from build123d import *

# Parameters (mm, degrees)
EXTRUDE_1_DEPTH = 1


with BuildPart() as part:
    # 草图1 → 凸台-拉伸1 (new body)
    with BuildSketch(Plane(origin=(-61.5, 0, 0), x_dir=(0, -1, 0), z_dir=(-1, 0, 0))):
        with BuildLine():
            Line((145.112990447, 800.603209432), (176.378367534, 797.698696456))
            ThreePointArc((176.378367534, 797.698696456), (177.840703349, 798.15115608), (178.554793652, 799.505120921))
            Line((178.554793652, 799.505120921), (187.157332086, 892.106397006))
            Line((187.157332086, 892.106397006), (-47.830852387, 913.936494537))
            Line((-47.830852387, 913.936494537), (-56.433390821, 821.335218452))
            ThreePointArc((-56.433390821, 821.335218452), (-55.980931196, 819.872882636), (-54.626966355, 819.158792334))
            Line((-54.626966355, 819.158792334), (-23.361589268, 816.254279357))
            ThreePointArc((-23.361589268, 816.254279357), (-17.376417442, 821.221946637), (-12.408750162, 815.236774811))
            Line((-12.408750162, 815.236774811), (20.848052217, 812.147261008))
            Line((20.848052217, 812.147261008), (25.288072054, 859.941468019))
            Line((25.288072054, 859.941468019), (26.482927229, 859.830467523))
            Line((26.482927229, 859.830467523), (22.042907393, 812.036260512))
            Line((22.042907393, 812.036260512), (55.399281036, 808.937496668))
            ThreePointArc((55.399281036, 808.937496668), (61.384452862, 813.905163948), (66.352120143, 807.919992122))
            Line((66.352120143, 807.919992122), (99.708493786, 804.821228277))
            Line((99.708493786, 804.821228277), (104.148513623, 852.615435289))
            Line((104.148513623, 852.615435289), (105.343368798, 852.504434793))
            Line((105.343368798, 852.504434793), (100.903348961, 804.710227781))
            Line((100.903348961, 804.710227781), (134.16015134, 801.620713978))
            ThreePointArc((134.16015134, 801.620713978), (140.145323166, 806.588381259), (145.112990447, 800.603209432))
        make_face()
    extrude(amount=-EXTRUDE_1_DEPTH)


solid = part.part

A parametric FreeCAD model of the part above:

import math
import FreeCAD as App
import Part
import Sketcher
Q = App.Units.Quantity

doc = App.newDocument("Part")
params = doc.addObject("Spreadsheet::Sheet", "Params")
for row, (alias, value) in enumerate([
    ("sketch1_radius", "2 mm"),
    ("sketch1_radius2", "2 mm"),
    ("sketch1_radius3", "5.5 mm"),
    ("sketch1_radius4", "5.5 mm"),
    ("sketch1_radius5", "5.5 mm"),
    ("pad1_length", "1 mm"),
], start=1):
    params.set(f"A{row}", alias)
    params.set(f"B{row}", "=" + value)
    params.setAlias(f"B{row}", alias)

body = doc.addObject("PartDesign::Body", "Body")

sketch1 = body.newObject("Sketcher::SketchObject", "Sketch")
sketch1.AttachmentSupport = (doc.getObject("YZ_Plane"), [""])
sketch1.MapMode = "FlatFace"
sketch1.AttachmentOffset = App.Placement(App.Vector(0, 0, -61.5), App.Rotation())
sketch1.addGeometry(Part.LineSegment(App.Vector(-145.11299, 800.603209, 0), App.Vector(-176.378368, 797.698696, 0)), False)
sketch1.addGeometry(Part.ArcOfCircle(Part.Circle(App.Vector(-176.563368, 799.690122, 0), App.Vector(0, 0, 1), 2), math.radians(-174.69253), math.radians(-84.69253)), False)
sketch1.addGeometry(Part.LineSegment(App.Vector(-178.554794, 799.505121, 0), App.Vector(-187.157332, 892.106397, 0)), False)
sketch1.addGeometry(Part.LineSegment(App.Vector(-187.157332, 892.106397, 0), App.Vector(47.830852, 913.936495, 0)), False)
sketch1.addGeometry(Part.LineSegment(App.Vector(47.830852, 913.936495, 0), App.Vector(56.433391, 821.335218, 0)), False)
sketch1.addGeometry(Part.ArcOfCircle(Part.Circle(App.Vector(54.441966, 821.150218, 0), App.Vector(0, 0, 1), 2), math.radians(-84.69253), math.radians(5.30747)), False)
sketch1.addGeometry(Part.LineSegment(App.Vector(54.626966, 819.158792, 0), App.Vector(23.361589, 816.254279, 0)), False)
sketch1.addGeometry(Part.ArcOfCircle(Part.Circle(App.Vector(17.88517, 815.745527, 0), App.Vector(0, 0, 1), 5.5), math.radians(5.30747), math.radians(185.30747)), False)
sketch1.addGeometry(Part.LineSegment(App.Vector(12.40875, 815.236775, 0), App.Vector(-20.848052, 812.147261, 0)), False)
sketch1.addGeometry(Part.LineSegment(App.Vector(-20.848052, 812.147261, 0), App.Vector(-25.288072, 859.941468, 0)), False)
sketch1.addGeometry(Part.LineSegment(App.Vector(-25.288072, 859.941468, 0), App.Vector(-26.482927, 859.830468, 0)), False)
sketch1.addGeometry(Part.LineSegment(App.Vector(-26.482927, 859.830468, 0), App.Vector(-22.042907, 812.036261, 0)), False)
sketch1.addGeometry(Part.LineSegment(App.Vector(-22.042907, 812.036261, 0), App.Vector(-55.399281, 808.937497, 0)), False)
sketch1.addGeometry(Part.ArcOfCircle(Part.Circle(App.Vector(-60.875701, 808.428744, 0), App.Vector(0, 0, 1), 5.5), math.radians(5.30747), math.radians(185.30747)), False)
sketch1.addGeometry(Part.LineSegment(App.Vector(-66.35212, 807.919992, 0), App.Vector(-99.708494, 804.821228, 0)), False)
sketch1.addGeometry(Part.LineSegment(App.Vector(-99.708494, 804.821228, 0), App.Vector(-104.148514, 852.615435, 0)), False)
sketch1.addGeometry(Part.LineSegment(App.Vector(-104.148514, 852.615435, 0), App.Vector(-105.343369, 852.504435, 0)), False)
sketch1.addGeometry(Part.LineSegment(App.Vector(-105.343369, 852.504435, 0), App.Vector(-100.903349, 804.710228, 0)), False)
sketch1.addGeometry(Part.LineSegment(App.Vector(-100.903349, 804.710228, 0), App.Vector(-134.160151, 801.620714, 0)), False)
sketch1.addGeometry(Part.ArcOfCircle(Part.Circle(App.Vector(-139.636571, 801.111962, 0), App.Vector(0, 0, 1), 5.5), math.radians(5.30747), math.radians(185.30747)), False)
sketch1.addConstraint(Sketcher.Constraint("Coincident", 0, 2, 1, 2))
sketch1.addConstraint(Sketcher.Constraint("Coincident", 1, 1, 2, 1))
sketch1.addConstraint(Sketcher.Constraint("Coincident", 2, 2, 3, 1))
sketch1.addConstraint(Sketcher.Constraint("Coincident", 3, 2, 4, 1))
sketch1.addConstraint(Sketcher.Constraint("Coincident", 4, 2, 5, 2))
sketch1.addConstraint(Sketcher.Constraint("Coincident", 5, 1, 6, 1))
sketch1.addConstraint(Sketcher.Constraint("Coincident", 6, 2, 7, 1))
sketch1.addConstraint(Sketcher.Constraint("Coincident", 7, 2, 8, 1))
sketch1.addConstraint(Sketcher.Constraint("Coincident", 8, 2, 9, 1))
sketch1.addConstraint(Sketcher.Constraint("Coincident", 9, 2, 10, 1))
sketch1.addConstraint(Sketcher.Constraint("Coincident", 10, 2, 11, 1))
sketch1.addConstraint(Sketcher.Constraint("Coincident", 11, 2, 12, 1))
sketch1.addConstraint(Sketcher.Constraint("Coincident", 12, 2, 13, 1))
sketch1.addConstraint(Sketcher.Constraint("Coincident", 13, 2, 14, 1))
sketch1.addConstraint(Sketcher.Constraint("Coincident", 14, 2, 15, 1))
sketch1.addConstraint(Sketcher.Constraint("Coincident", 15, 2, 16, 1))
sketch1.addConstraint(Sketcher.Constraint("Coincident", 16, 2, 17, 1))
sketch1.addConstraint(Sketcher.Constraint("Coincident", 17, 2, 18, 1))
sketch1.addConstraint(Sketcher.Constraint("Coincident", 18, 2, 19, 1))
sketch1.addConstraint(Sketcher.Constraint("Coincident", 19, 2, 0, 1))
sketch1.addConstraint(Sketcher.Constraint("Radius", 1, Q("2 mm")))
sketch1.addConstraint(Sketcher.Constraint("Radius", 5, Q("2 mm")))
sketch1.addConstraint(Sketcher.Constraint("Radius", 7, Q("5.5 mm")))
sketch1.addConstraint(Sketcher.Constraint("Radius", 13, Q("5.5 mm")))
sketch1.addConstraint(Sketcher.Constraint("Radius", 19, Q("5.5 mm")))
sketch1.addConstraint(Sketcher.Constraint("Distance", 2, Q("93 mm")))
sketch1.addConstraint(Sketcher.Constraint("Distance", 3, Q("236 mm")))
sketch1.addConstraint(Sketcher.Constraint("Distance", 4, Q("93 mm")))
sketch1.addConstraint(Sketcher.Constraint("Distance", 9, Q("48 mm")))
sketch1.addConstraint(Sketcher.Constraint("Distance", 11, Q("48 mm")))
sketch1.addConstraint(Sketcher.Constraint("Distance", 15, Q("48 mm")))
sketch1.addConstraint(Sketcher.Constraint("Distance", 17, Q("48 mm")))
sketch1.addConstraint(Sketcher.Constraint("Distance", 0, Q("31.4 mm")))
sketch1.addConstraint(Sketcher.Constraint("Distance", 6, Q("31.4 mm")))
sketch1.addConstraint(Sketcher.Constraint("Distance", 8, Q("33.4 mm")))
sketch1.addConstraint(Sketcher.Constraint("Distance", 10, Q("1.2 mm")))
sketch1.addConstraint(Sketcher.Constraint("Distance", 12, Q("33.5 mm")))
sketch1.addConstraint(Sketcher.Constraint("Distance", 14, Q("33.5 mm")))
sketch1.addConstraint(Sketcher.Constraint("Distance", 16, Q("1.2 mm")))
sketch1.addConstraint(Sketcher.Constraint("Distance", 18, Q("33.4 mm")))
sketch1.addConstraint(Sketcher.Constraint("DistanceX", 1, 3, 0, 2, Q("0.185001 mm")))
sketch1.addConstraint(Sketcher.Constraint("DistanceY", 1, 1, 1, 3, Q("0.185001 mm")))
sketch1.addConstraint(Sketcher.Constraint("DistanceY", 5, 3, 4, 2, Q("0.185001 mm")))
sketch1.addConstraint(Sketcher.Constraint("DistanceX", 5, 3, 5, 1, Q("0.185001 mm")))
sketch1.addConstraint(Sketcher.Constraint("DistanceY", 10, 2, 9, 2, Q("0.111 mm")))
sketch1.addConstraint(Sketcher.Constraint("DistanceY", 11, 2, 8, 2, Q("0.111 mm")))
sketch1.addConstraint(Sketcher.Constraint("DistanceY", 16, 2, 15, 2, Q("0.111 mm")))
sketch1.addConstraint(Sketcher.Constraint("DistanceY", 17, 2, 14, 2, Q("0.111 mm")))
sketch1.addConstraint(Sketcher.Constraint("DistanceX", 13, 3, -1, 1, Q("60.875701 mm")))
sketch1.addConstraint(Sketcher.Constraint("DistanceY", 0, 2, 2, 2, Q("94.407701 mm")))
sketch1.addConstraint(Sketcher.Constraint("DistanceX", 6, 2, 4, 2, Q("33.071802 mm")))
sketch1.addConstraint(Sketcher.Constraint("DistanceX", 1, 3, -1, 1, Q("176.563368 mm")))
sketch1.addConstraint(Sketcher.Constraint("DistanceY", -1, 1, 1, 3, Q("799.690122 mm")))
sketch1.addConstraint(Sketcher.Constraint("DistanceX", -1, 1, 7, 3, Q("17.88517 mm")))
sketch1.addConstraint(Sketcher.Constraint("DistanceX", 19, 3, -1, 1, Q("139.636571 mm")))
sketch1.addConstraint(Sketcher.Constraint("DistanceX", -1, 1, 4, 2, Q("56.433391 mm")))
sketch1.addConstraint(Sketcher.Constraint("DistanceX", -1, 1, 7, 2, Q("12.40875 mm")))
sketch1.addConstraint(Sketcher.Constraint("DistanceY", -1, 1, 8, 2, Q("812.147261 mm")))
sketch1.addConstraint(Sketcher.Constraint("DistanceY", -1, 1, 9, 2, Q("859.941468 mm")))
sketch1.addConstraint(Sketcher.Constraint("DistanceX", 12, 2, -1, 1, Q("55.399281 mm")))
sketch1.addConstraint(Sketcher.Constraint("DistanceX", 13, 2, -1, 1, Q("66.35212 mm")))
sketch1.addConstraint(Sketcher.Constraint("DistanceY", -1, 1, 14, 2, Q("804.821228 mm")))
sketch1.addConstraint(Sketcher.Constraint("DistanceX", 16, 2, -1, 1, Q("105.343369 mm")))
sketch1.addConstraint(Sketcher.Constraint("DistanceX", 18, 2, -1, 1, Q("134.160151 mm")))
sketch1.addConstraint(Sketcher.Constraint("DistanceX", 19, 2, -1, 1, Q("145.11299 mm")))
sketch1.setExpression("Constraints[20]", "Params.sketch1_radius")
sketch1.setExpression("Constraints[21]", "Params.sketch1_radius2")
sketch1.setExpression("Constraints[22]", "Params.sketch1_radius3")
sketch1.setExpression("Constraints[23]", "Params.sketch1_radius4")
sketch1.setExpression("Constraints[24]", "Params.sketch1_radius5")
pad1 = body.newObject("PartDesign::Pad", "Pad")
pad1.Profile = sketch1
pad1.setExpression("Length", "Params.pad1_length")

doc.recompute()
